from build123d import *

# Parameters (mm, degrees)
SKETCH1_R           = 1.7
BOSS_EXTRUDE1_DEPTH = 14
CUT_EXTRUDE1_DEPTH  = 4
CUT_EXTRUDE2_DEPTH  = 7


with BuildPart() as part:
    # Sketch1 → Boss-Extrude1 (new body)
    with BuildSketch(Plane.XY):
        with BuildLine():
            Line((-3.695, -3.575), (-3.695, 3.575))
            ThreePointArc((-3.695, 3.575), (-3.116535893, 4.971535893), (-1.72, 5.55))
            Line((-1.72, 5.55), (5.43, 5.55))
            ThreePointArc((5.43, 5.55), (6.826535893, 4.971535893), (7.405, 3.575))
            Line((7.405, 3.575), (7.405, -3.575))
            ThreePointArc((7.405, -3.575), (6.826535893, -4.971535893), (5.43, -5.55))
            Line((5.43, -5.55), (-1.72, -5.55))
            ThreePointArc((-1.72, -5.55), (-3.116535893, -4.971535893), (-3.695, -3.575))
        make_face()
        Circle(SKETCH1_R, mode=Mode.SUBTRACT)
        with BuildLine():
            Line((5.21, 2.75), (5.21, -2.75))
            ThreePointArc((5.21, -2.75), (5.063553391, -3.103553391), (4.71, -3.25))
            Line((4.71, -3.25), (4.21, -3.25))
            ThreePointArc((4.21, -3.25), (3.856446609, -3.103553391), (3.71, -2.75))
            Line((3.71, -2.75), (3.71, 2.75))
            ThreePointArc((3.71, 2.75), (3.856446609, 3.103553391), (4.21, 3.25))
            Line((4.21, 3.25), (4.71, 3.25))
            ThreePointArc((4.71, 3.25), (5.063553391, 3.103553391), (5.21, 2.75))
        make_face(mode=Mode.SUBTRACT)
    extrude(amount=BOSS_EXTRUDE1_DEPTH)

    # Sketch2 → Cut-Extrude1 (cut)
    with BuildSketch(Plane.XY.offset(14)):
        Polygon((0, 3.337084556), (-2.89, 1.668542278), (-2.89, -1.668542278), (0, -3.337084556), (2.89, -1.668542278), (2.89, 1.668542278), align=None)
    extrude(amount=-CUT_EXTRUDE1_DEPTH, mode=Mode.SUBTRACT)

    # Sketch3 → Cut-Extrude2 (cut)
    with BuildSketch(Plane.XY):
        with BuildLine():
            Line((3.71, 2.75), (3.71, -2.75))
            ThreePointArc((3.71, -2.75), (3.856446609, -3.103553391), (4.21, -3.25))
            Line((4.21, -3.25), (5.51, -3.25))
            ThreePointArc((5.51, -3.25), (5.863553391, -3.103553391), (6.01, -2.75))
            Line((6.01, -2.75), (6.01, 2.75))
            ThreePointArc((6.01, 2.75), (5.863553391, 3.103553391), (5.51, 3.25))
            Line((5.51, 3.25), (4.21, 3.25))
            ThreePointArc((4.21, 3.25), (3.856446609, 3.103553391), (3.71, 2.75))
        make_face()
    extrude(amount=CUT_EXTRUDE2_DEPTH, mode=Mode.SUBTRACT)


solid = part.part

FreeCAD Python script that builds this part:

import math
import FreeCAD as App
import Part
import Sketcher

V = App.Vector
Q = App.Units.Quantity

doc = App.newDocument("Part")
body = doc.addObject("PartDesign::Body", "Body")

# Sketch on XY plane
sketch1 = body.newObject("Sketcher::SketchObject", "Sketch")
sketch1.AttachmentSupport = (doc.getObject("XY_Plane"), [""])
sketch1.MapMode = "FlatFace"
sketch1.addGeometry(Part.LineSegment(V(-3.695, 3.575, 0), V(-3.695, -3.575, 0)), False)
sketch1.addGeometry(Part.ArcOfCircle(Part.Circle(V(-1.72, -3.575, 0), V(0, 0, 1), 1.975), math.radians(180), math.radians(270)), False)
sketch1.addGeometry(Part.LineSegment(V(-1.72, -5.55, 0), V(5.43, -5.55, 0)), False)
sketch1.addGeometry(Part.ArcOfCircle(Part.Circle(V(5.43, -3.575, 0), V(0, 0, 1), 1.975), math.radians(-90), math.radians(0)), False)
sketch1.addGeometry(Part.LineSegment(V(7.405, -3.575, 0), V(7.405, 3.575, 0)), False)
sketch1.addGeometry(Part.ArcOfCircle(Part.Circle(V(5.43, 3.575, 0), V(0, 0, 1), 1.975), math.radians(0), math.radians(90)), False)
sketch1.addGeometry(Part.LineSegment(V(5.43, 5.55, 0), V(-1.72, 5.55, 0)), False)
sketch1.addGeometry(Part.ArcOfCircle(Part.Circle(V(-1.72, 3.575, 0), V(0, 0, 1), 1.975), math.radians(90), math.radians(180)), False)
sketch1.addGeometry(Part.LineSegment(V(5.21, 2.75, 0), V(5.21, -2.75, 0)), False)
sketch1.addGeometry(Part.ArcOfCircle(Part.Circle(V(4.71, -2.75, 0), V(0, 0, 1), 0.5), math.radians(-90), math.radians(0)), False)
sketch1.addGeometry(Part.LineSegment(V(4.71, -3.25, 0), V(4.21, -3.25, 0)), False)
sketch1.addGeometry(Part.ArcOfCircle(Part.Circle(V(4.21, -2.75, 0), V(0, 0, 1), 0.5), math.radians(180), math.radians(270)), False)
sketch1.addGeometry(Part.LineSegment(V(3.71, -2.75, 0), V(3.71, 2.75, 0)), False)
sketch1.addGeometry(Part.ArcOfCircle(Part.Circle(V(4.21, 2.75, 0), V(0, 0, 1), 0.5), math.radians(90), math.radians(180)), False)
sketch1.addGeometry(Part.LineSegment(V(4.21, 3.25, 0), V(4.71, 3.25, 0)), False)
sketch1.addGeometry(Part.ArcOfCircle(Part.Circle(V(4.71, 2.75, 0), V(0, 0, 1), 0.5), math.radians(0), math.radians(90)), False)
sketch1.addGeometry(Part.Circle(V(0, 0, 0), V(0, 0, 1), 1.7), False)
sketch1.addConstraint(Sketcher.Constraint("Tangent", 0, 2, 1, 1))
sketch1.addConstraint(Sketcher.Constraint("Tangent", 1, 2, 2, 1))
sketch1.addConstraint(Sketcher.Constraint("Tangent", 2, 2, 3, 1))
sketch1.addConstraint(Sketcher.Constraint("Tangent", 3, 2, 4, 1))
sketch1.addConstraint(Sketcher.Constraint("Tangent", 4, 2, 5, 1))
sketch1.addConstraint(Sketcher.Constraint("Tangent", 5, 2, 6, 1))
sketch1.addConstraint(Sketcher.Constraint("Tangent", 6, 2, 7, 1))
sketch1.addConstraint(Sketcher.Constraint("Tangent", 7, 2, 0, 1))
sketch1.addConstraint(Sketcher.Constraint("Tangent", 8, 2, 9, 2))
sketch1.addConstraint(Sketcher.Constraint("Tangent", 9, 1, 10, 1))
sketch1.addConstraint(Sketcher.Constraint("Tangent", 10, 2, 11, 2))
sketch1.addConstraint(Sketcher.Constraint("Tangent", 11, 1, 12, 1))
sketch1.addConstraint(Sketcher.Constraint("Tangent", 12, 2, 13, 2))
sketch1.addConstraint(Sketcher.Constraint("Tangent", 13, 1, 14, 1))
sketch1.addConstraint(Sketcher.Constraint("Tangent", 14, 2, 15, 2))
sketch1.addConstraint(Sketcher.Constraint("Tangent", 15, 1, 8, 1))
sketch1.addConstraint(Sketcher.Constraint("Vertical", 0))
sketch1.addConstraint(Sketcher.Constraint("Horizontal", 2))
sketch1.addConstraint(Sketcher.Constraint("Vertical", 4))
sketch1.addConstraint(Sketcher.Constraint("Horizontal", 6))
sketch1.addConstraint(Sketcher.Constraint("Vertical", 8))
sketch1.addConstraint(Sketcher.Constraint("Horizontal", 10))
sketch1.addConstraint(Sketcher.Constraint("Vertical", 12))
sketch1.addConstraint(Sketcher.Constraint("Horizontal", 14))
sketch1.addConstraint(Sketcher.Constraint("Coincident", 16, 3, -1, 1))
sketch1.addConstraint(Sketcher.Constraint("Equal", 1, 3))
sketch1.addConstraint(Sketcher.Constraint("Equal", 3, 5))
sketch1.addConstraint(Sketcher.Constraint("Equal", 5, 7))
sketch1.addConstraint(Sketcher.Constraint("Equal", 9, 11))
sketch1.addConstraint(Sketcher.Constraint("Equal", 11, 13))
sketch1.addConstraint(Sketcher.Constraint("Equal", 13, 15))
sketch1.addConstraint(Sketcher.Constraint("Equal", 6, 0))
sketch1.addConstraint(Sketcher.Constraint("Diameter", 16, 3.4))
sketch1.addConstraint(Sketcher.Constraint("Radius", 9, 0.5))
sketch1.addConstraint(Sketcher.Constraint("DistanceX", 10, 2, 10, 1, 0.5))
sketch1.addConstraint(Sketcher.Constraint("DistanceY", 8, 2, 8, 1, 5.5))
sketch1.addConstraint(Sketcher.Constraint("Radius", 1, 1.975))
sketch1.addConstraint(Sketcher.Constraint("DistanceX", 2, 1, 2, 2, 7.15))
sketch1.addConstraint(Sketcher.Constraint("DistanceY", 1, 2, 11, 3, 2.8))
sketch1.addConstraint(Sketcher.Constraint("DistanceX", 1, 3, -1, 1, 1.72))
sketch1.addConstraint(Sketcher.Constraint("DistanceX", -1, 1, 9, 3, 4.71))
sketch1.addConstraint(Sketcher.Constraint("DistanceY", 9, 3, -1, 1, 2.75))
pad1 = body.newObject("PartDesign::Pad", "Pad")
pad1.Profile = sketch1
pad1.Length = 14

# Sketch on XY plane
sketch2 = body.newObject("Sketcher::SketchObject", "Sketch001")
sketch2.AttachmentSupport = (doc.getObject("XY_Plane"), [""])
sketch2.MapMode = "FlatFace"
sketch2.AttachmentOffset = App.Placement(V(0, 0, 14), App.Rotation())
sketch2.addGeometry(Part.LineSegment(V(0, 3.337085, 0), V(-2.89, 1.668542, 0)), False)
sketch2.addGeometry(Part.LineSegment(V(-2.89, 1.668542, 0), V(-2.89, -1.668542, 0)), False)
sketch2.addGeometry(Part.LineSegment(V(-2.89, -1.668542, 0), V(0, -3.337085, 0)), False)
sketch2.addGeometry(Part.LineSegment(V(0, -3.337085, 0), V(2.89, -1.668542, 0)), False)
sketch2.addGeometry(Part.LineSegment(V(2.89, -1.668542, 0), V(2.89, 1.668542, 0)), False)
sketch2.addGeometry(Part.LineSegment(V(2.89, 1.668542, 0), V(0, 3.337085, 0)), False)
sketch2.addConstraint(Sketcher.Constraint("Coincident", 0, 2, 1, 1))
sketch2.addConstraint(Sketcher.Constraint("Coincident", 1, 2, 2, 1))
sketch2.addConstraint(Sketcher.Constraint("Coincident", 2, 2, 3, 1))
sketch2.addConstraint(Sketcher.Constraint("Coincident", 3, 2, 4, 1))
sketch2.addConstraint(Sketcher.Constraint("Coincident", 4, 2, 5, 1))
sketch2.addConstraint(Sketcher.Constraint("Coincident", 5, 2, 0, 1))
sketch2.addConstraint(Sketcher.Constraint("Vertical", 1))
sketch2.addConstraint(Sketcher.Constraint("Vertical", 4))
sketch2.addConstraint(Sketcher.Constraint("Symmetric", 0, 2, 3, 2, -1, 1))
sketch2.addConstraint(Sketcher.Constraint("Symmetric", 2, 2, 5, 2, -1, 1))
sketch2.addConstraint(Sketcher.Constraint("PointOnObject", 2, 2, -2))
sketch2.addConstraint(Sketcher.Constraint("Parallel", 2, 5))
sketch2.addConstraint(Sketcher.Constraint("Horizontal", 1, 2, 3, 2))
sketch2.addConstraint(Sketcher.Constraint("Angle", 0, Q("-150 deg")))
sketch2.addConstraint(Sketcher.Constraint("DistanceX", 0, 2, -1, 1, 2.89))
sketch2.addConstraint(Sketcher.Constraint("DistanceY", 1, 2, 1, 1, 3.337085))
pocket1 = body.newObject("PartDesign::Pocket", "Pocket")
pocket1.Profile = sketch2
pocket1.Length = 4

# Sketch on XY plane
sketch3 = body.newObject("Sketcher::SketchObject", "Sketch002")
sketch3.AttachmentSupport = (doc.getObject("XY_Plane"), [""])
sketch3.MapMode = "FlatFace"
sketch3.addGeometry(Part.LineSegment(V(3.71, 2.75, 0), V(3.71, -2.75, 0)), False)
sketch3.addGeometry(Part.ArcOfCircle(Part.Circle(V(4.21, -2.75, 0), V(0, 0, 1), 0.5), math.radians(180), math.radians(270)), False)
sketch3.addGeometry(Part.LineSegment(V(4.21, -3.25, 0), V(5.51, -3.25, 0)), False)
sketch3.addGeometry(Part.ArcOfCircle(Part.Circle(V(5.51, -2.75, 0), V(0, 0, 1), 0.5), math.radians(-90), math.radians(0)), False)
sketch3.addGeometry(Part.LineSegment(V(6.01, -2.75, 0), V(6.01, 2.75, 0)), False)
sketch3.addGeometry(Part.ArcOfCircle(Part.Circle(V(5.51, 2.75, 0), V(0, 0, 1), 0.5), math.radians(0), math.radians(90)), False)
sketch3.addGeometry(Part.LineSegment(V(5.51, 3.25, 0), V(4.21, 3.25, 0)), False)
sketch3.addGeometry(Part.ArcOfCircle(Part.Circle(V(4.21, 2.75, 0), V(0, 0, 1), 0.5), math.radians(90), math.radians(180)), False)
sketch3.addConstraint(Sketcher.Constraint("Tangent", 0, 2, 1, 1))
sketch3.addConstraint(Sketcher.Constraint("Tangent", 1, 2, 2, 1))
sketch3.addConstraint(Sketcher.Constraint("Tangent", 2, 2, 3, 1))
sketch3.addConstraint(Sketcher.Constraint("Tangent", 3, 2, 4, 1))
sketch3.addConstraint(Sketcher.Constraint("Tangent", 4, 2, 5, 1))
sketch3.addConstraint(Sketcher.Constraint("Tangent", 5, 2, 6, 1))
sketch3.addConstraint(Sketcher.Constraint("Tangent", 6, 2, 7, 1))
sketch3.addConstraint(Sketcher.Constraint("Tangent", 7, 2, 0, 1))
sketch3.addConstraint(Sketcher.Constraint("Vertical", 0))
sketch3.addConstraint(Sketcher.Constraint("Horizontal", 2))
sketch3.addConstraint(Sketcher.Constraint("Vertical", 4))
sketch3.addConstraint(Sketcher.Constraint("Horizontal", 6))
sketch3.addConstraint(Sketcher.Constraint("Equal", 1, 3))
sketch3.addConstraint(Sketcher.Constraint("Equal", 3, 5))
sketch3.addConstraint(Sketcher.Constraint("Equal", 5, 7))
sketch3.addConstraint(Sketcher.Constraint("Radius", 1, 0.5))
sketch3.addConstraint(Sketcher.Constraint("DistanceX", 2, 1, 2, 2, 1.3))
sketch3.addConstraint(Sketcher.Constraint("DistanceY", 0, 2, 0, 1, 5.5))
sketch3.addConstraint(Sketcher.Constraint("DistanceX", -1, 1, 1, 3, 4.21))
sketch3.addConstraint(Sketcher.Constraint("DistanceY", 1, 3, -1, 1, 2.75))
pocket2 = body.newObject("PartDesign::Pocket", "Pocket001")
pocket2.Profile = sketch3
pocket2.Length = 7
pocket2.Reversed = True

doc.recompute()
